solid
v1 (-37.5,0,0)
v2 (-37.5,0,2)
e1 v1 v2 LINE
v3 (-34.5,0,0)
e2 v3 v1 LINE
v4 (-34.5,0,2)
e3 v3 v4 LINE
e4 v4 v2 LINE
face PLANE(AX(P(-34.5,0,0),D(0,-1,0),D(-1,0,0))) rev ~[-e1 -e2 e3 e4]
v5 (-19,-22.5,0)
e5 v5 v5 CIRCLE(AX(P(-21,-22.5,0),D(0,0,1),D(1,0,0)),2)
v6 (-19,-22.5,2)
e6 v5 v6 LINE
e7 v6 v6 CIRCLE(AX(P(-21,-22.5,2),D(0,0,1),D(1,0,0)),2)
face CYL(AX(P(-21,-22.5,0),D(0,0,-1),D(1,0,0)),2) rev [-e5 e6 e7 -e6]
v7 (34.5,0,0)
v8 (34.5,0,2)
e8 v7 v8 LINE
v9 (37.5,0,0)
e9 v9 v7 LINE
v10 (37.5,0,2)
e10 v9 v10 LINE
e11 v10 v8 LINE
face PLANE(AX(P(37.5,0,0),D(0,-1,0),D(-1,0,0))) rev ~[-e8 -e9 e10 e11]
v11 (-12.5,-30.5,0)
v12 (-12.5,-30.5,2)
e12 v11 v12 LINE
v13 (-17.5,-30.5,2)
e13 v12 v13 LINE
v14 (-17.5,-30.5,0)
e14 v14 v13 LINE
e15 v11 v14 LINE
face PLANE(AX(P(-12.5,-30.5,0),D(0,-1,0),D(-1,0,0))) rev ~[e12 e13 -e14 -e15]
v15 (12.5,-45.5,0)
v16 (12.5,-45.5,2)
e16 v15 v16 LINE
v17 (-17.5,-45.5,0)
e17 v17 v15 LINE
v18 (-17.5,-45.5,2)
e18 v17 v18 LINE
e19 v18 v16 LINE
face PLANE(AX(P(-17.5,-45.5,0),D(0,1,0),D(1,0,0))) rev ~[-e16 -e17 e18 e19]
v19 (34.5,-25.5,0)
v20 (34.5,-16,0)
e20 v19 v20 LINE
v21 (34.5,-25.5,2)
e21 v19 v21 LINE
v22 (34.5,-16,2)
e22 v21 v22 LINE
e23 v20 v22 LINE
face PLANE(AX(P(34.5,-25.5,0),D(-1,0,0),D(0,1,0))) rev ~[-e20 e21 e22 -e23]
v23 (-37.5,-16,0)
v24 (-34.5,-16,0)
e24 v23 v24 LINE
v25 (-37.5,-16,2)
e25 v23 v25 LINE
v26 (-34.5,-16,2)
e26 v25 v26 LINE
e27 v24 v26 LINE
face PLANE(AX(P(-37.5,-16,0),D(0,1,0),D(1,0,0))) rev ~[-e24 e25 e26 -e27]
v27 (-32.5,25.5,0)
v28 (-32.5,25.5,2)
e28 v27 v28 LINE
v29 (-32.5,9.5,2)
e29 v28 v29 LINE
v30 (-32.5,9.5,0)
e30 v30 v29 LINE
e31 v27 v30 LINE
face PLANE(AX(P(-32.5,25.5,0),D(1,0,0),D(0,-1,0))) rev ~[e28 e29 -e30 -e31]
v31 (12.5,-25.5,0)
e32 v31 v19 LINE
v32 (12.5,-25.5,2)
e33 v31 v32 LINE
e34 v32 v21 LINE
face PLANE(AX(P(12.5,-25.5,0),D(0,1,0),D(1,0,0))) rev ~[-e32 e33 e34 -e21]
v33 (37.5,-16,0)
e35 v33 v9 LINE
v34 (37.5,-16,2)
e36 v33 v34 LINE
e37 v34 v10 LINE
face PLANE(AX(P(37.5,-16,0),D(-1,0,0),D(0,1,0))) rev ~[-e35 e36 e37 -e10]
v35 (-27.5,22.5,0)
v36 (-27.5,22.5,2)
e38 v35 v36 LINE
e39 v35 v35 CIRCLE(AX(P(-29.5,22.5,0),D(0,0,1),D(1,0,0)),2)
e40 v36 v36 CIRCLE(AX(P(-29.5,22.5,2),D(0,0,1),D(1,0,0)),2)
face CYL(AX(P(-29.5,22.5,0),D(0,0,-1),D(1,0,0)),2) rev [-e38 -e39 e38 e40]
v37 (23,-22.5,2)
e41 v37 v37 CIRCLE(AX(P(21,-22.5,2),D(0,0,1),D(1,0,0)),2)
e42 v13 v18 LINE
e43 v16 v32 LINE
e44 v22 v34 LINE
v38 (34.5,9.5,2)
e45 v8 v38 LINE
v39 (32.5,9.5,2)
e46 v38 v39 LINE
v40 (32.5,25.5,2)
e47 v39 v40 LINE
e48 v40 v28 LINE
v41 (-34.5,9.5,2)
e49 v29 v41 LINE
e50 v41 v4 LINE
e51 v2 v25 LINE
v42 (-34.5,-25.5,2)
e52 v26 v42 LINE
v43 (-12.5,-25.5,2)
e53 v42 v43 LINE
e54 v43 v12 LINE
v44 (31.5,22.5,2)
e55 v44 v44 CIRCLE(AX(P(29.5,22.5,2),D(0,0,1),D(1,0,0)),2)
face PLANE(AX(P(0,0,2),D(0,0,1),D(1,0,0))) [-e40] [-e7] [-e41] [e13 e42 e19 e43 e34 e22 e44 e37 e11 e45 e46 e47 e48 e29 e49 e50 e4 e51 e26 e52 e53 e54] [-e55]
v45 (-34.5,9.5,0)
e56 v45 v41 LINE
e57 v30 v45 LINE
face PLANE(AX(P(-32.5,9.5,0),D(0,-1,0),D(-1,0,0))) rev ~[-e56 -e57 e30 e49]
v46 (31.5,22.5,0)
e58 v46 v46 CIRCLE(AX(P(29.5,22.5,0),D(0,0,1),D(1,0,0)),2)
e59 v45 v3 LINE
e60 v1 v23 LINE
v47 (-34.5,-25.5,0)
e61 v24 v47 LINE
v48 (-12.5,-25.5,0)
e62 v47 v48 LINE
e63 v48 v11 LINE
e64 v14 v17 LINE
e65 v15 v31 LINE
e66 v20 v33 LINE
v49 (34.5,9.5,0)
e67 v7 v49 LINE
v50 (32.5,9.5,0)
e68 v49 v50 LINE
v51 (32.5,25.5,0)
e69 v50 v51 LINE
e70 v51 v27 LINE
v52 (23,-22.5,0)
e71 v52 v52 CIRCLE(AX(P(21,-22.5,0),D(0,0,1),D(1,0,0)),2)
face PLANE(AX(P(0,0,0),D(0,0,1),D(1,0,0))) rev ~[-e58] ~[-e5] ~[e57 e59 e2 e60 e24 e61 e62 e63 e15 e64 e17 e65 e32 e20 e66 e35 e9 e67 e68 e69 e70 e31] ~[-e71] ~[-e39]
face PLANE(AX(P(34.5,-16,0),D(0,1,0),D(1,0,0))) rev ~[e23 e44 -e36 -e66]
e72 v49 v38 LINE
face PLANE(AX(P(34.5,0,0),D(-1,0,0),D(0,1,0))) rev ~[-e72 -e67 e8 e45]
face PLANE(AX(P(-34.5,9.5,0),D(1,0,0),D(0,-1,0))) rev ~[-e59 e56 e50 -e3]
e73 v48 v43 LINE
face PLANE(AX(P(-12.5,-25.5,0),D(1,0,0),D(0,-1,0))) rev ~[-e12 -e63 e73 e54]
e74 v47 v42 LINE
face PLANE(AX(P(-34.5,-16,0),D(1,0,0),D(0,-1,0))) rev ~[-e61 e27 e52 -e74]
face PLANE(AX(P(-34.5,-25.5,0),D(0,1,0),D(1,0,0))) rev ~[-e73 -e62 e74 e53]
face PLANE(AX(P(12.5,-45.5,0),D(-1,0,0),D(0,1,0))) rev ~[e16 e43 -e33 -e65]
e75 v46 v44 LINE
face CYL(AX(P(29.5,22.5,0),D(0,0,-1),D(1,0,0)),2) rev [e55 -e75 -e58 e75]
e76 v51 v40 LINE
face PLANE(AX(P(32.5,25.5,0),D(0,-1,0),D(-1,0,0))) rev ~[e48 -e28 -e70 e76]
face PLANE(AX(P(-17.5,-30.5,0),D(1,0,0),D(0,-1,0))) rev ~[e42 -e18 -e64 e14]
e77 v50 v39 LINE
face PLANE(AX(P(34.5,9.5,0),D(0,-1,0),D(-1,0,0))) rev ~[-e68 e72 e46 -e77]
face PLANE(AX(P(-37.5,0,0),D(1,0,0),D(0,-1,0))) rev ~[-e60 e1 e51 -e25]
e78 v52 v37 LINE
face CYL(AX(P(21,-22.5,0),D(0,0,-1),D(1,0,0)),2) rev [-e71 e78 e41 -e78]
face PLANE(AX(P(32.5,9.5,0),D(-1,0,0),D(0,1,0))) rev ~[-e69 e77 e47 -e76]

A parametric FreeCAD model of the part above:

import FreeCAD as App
import Part
import Sketcher


def add_polygon(sketch, points):
    """Adds a closed chain of lines whose ends are joined by coincident constraints."""
    first, n = sketch.GeometryCount, len(points)
    for a, b in zip(points, points[1:] + points[:1]):
        sketch.addGeometry(Part.LineSegment(App.Vector(*a, 0), App.Vector(*b, 0)), False)
    for i in range(n):
        sketch.addConstraint(Sketcher.Constraint("Coincident", first + i, 2, first + (i + 1) % n, 1))

doc = App.newDocument("Part")
body = doc.addObject("PartDesign::Body", "Body")

# Sketch on XY plane
sketch1 = doc.addObject("Sketcher::SketchObject", "Sketch")
body.addObject(sketch1)
sketch1.AttachmentSupport = (doc.XY_Plane, [""])
sketch1.MapMode = "FlatFace"
add_polygon(sketch1, [(32.5, 25.5), (-32.5, 25.5), (-32.5, 9.5), (-34.5, 9.5), (-34.5, 0), (-37.5, 0), (-37.5, -16), (-34.5, -16), (-34.5, -25.5), (-12.5, -25.5), (-12.5, -30.5), (-17.5, -30.5), (-17.5, -45.5), (12.5, -45.5), (12.5, -25.5), (34.5, -25.5), (34.5, -16), (37.5, -16), (37.5, 0), (34.5, 0), (34.5, 9.5), (32.5, 9.5)])  # lines 0-21
sketch1.addGeometry(Part.Circle(App.Vector(-21, -22.5, 0), App.Vector(0, 0, 1), 2), False)  # 22
sketch1.addGeometry(Part.Circle(App.Vector(21, -22.5, 0), App.Vector(0, 0, 1), 2), False)  # 23
sketch1.addGeometry(Part.Circle(App.Vector(-29.5, 22.5, 0), App.Vector(0, 0, 1), 2), False)  # 24
sketch1.addGeometry(Part.Circle(App.Vector(29.5, 22.5, 0), App.Vector(0, 0, 1), 2), False)  # 25
sketch1.addConstraint(Sketcher.Constraint("Horizontal", 0))
sketch1.addConstraint(Sketcher.Constraint("Vertical", 1))
sketch1.addConstraint(Sketcher.Constraint("Horizontal", 2))
sketch1.addConstraint(Sketcher.Constraint("Vertical", 3))
sketch1.addConstraint(Sketcher.Constraint("Horizontal", 4))
sketch1.addConstraint(Sketcher.Constraint("Vertical", 5))
sketch1.addConstraint(Sketcher.Constraint("Horizontal", 6))
sketch1.addConstraint(Sketcher.Constraint("Vertical", 7))
sketch1.addConstraint(Sketcher.Constraint("Horizontal", 8))
sketch1.addConstraint(Sketcher.Constraint("Vertical", 9))
sketch1.addConstraint(Sketcher.Constraint("Horizontal", 10))
sketch1.addConstraint(Sketcher.Constraint("Vertical", 11))
sketch1.addConstraint(Sketcher.Constraint("Horizontal", 12))
sketch1.addConstraint(Sketcher.Constraint("Vertical", 13))
sketch1.addConstraint(Sketcher.Constraint("Horizontal", 14))
sketch1.addConstraint(Sketcher.Constraint("Vertical", 15))
sketch1.addConstraint(Sketcher.Constraint("Horizontal", 16))
sketch1.addConstraint(Sketcher.Constraint("Vertical", 17))
sketch1.addConstraint(Sketcher.Constraint("Horizontal", 18))
sketch1.addConstraint(Sketcher.Constraint("Vertical", 19))
sketch1.addConstraint(Sketcher.Constraint("Horizontal", 20))
sketch1.addConstraint(Sketcher.Constraint("Vertical", 21))
sketch1.addConstraint(Sketcher.Constraint("Equal", 22, 23))
sketch1.addConstraint(Sketcher.Constraint("Equal", 23, 24))
sketch1.addConstraint(Sketcher.Constraint("Equal", 24, 25))
sketch1.addConstraint(Sketcher.Constraint("Symmetric", 4, 2, 17, 2, -1, 1))
sketch1.addConstraint(Sketcher.Constraint("Symmetric", 22, 3, 23, 3, -2))
sketch1.addConstraint(Sketcher.Constraint("Symmetric", 24, 3, 25, 3, -2))
sketch1.addConstraint(Sketcher.Constraint("Symmetric", 8, 2, 13, 2, -2))
sketch1.addConstraint(Sketcher.Constraint("Symmetric", 6, 2, 15, 2, -2))
sketch1.addConstraint(Sketcher.Constraint("Symmetric", 3, 2, 18, 2, -2))
sketch1.addConstraint(Sketcher.Constraint("Symmetric", 1, 2, 20, 2, -2))
sketch1.addConstraint(Sketcher.Constraint("Vertical", 3, 2, 6, 2))
sketch1.addConstraint(Sketcher.Constraint("Equal", 1, 5))
sketch1.addConstraint(Sketcher.Constraint("Equal", 3, 7))
sketch1.addConstraint(Sketcher.Constraint("Equal", 10, 9))
sketch1.addConstraint(Sketcher.Constraint("Diameter", 22, 4.0))
sketch1.addConstraint(Sketcher.Constraint("DistanceX", 0, 2, 0, 1, 65.0))
sketch1.addConstraint(Sketcher.Constraint("DistanceX", 2, 2, 2, 1, 2.0))
sketch1.addConstraint(Sketcher.Constraint("DistanceX", 4, 2, 4, 1, 3.0))
sketch1.addConstraint(Sketcher.Constraint("DistanceX", 8, 1, 8, 2, 22.0))
sketch1.addConstraint(Sketcher.Constraint("DistanceX", 10, 2, 10, 1, 5.0))
sketch1.addConstraint(Sketcher.Constraint("DistanceY", 1, 2, 1, 1, 16.0))
sketch1.addConstraint(Sketcher.Constraint("DistanceY", 11, 2, 11, 1, 15.0))
sketch1.addConstraint(Sketcher.Constraint("DistanceY", 3, 2, 3, 1, 9.5))
sketch1.addConstraint(Sketcher.Constraint("DistanceX", 22, 3, -1, 1, 21.0))
sketch1.addConstraint(Sketcher.Constraint("DistanceY", 22, 3, 24, 3, 45.0))
sketch1.addConstraint(Sketcher.Constraint("DistanceX", 24, 3, 25, 3, 59.0))
sketch1.addConstraint(Sketcher.Constraint("DistanceY", 24, 3, 0, 2, 3.0))
pad1 = doc.addObject("PartDesign::Pad", "Pad")
body.addObject(pad1)
pad1.Profile = sketch1
pad1.Length = 2

doc.recompute()
